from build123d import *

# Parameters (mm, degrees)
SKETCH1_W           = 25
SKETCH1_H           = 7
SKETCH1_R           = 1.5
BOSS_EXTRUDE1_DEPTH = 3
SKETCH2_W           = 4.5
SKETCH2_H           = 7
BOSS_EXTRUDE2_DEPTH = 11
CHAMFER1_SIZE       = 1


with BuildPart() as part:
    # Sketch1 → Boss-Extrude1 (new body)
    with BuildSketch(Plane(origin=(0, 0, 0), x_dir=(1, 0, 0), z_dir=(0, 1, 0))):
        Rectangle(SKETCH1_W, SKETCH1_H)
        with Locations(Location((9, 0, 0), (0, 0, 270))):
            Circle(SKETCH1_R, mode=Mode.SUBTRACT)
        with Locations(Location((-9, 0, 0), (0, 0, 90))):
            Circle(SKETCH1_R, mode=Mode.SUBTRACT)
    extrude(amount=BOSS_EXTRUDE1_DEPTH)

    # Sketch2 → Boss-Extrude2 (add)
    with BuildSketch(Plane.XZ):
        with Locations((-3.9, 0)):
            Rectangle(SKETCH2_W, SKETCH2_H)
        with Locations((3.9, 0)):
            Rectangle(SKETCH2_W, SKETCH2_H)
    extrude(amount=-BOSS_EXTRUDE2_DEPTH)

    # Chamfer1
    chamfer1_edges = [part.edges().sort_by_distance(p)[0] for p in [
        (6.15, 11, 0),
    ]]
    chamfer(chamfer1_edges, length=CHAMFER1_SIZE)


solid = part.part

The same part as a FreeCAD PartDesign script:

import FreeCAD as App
import Part
import Sketcher
from FreeCAD import Vector
Q = App.Units.Quantity


def edges_at(feature, points):
    """Names of the edges that pass closest to the given points."""
    edges = feature.Shape.Edges
    near = lambda p: min(range(len(edges)), key=lambda i: edges[i].distToShape(Part.Vertex(*p))[0])
    return sorted({f"Edge{near(p) + 1}" for p in points})

doc = App.newDocument("Part")
params = doc.addObject("Spreadsheet::Sheet", "Params")
for row, (alias, value) in enumerate([
    ("sketch1_diameter", "3 mm"),
    ("sketch1_width", "25 mm"),
    ("sketch1_height", "7 mm"),
    ("pad1_length", "3 mm"),
    ("sketch2_height", "7 mm"),
    ("sketch2_width", "4.5 mm"),
    ("pad2_length", "11 mm"),
    ("chamfer_size", "1 mm"),
], start=1):
    params.set(f"A{row}", alias)
    params.set(f"B{row}", "=" + value)
    params.setAlias(f"B{row}", alias)

body = doc.addObject("PartDesign::Body", "Body")

# Sketch on XZ plane
sketch1 = body.newObject("Sketcher::SketchObject", "Sketch")
sketch1.AttachmentSupport = (doc.getObject("XZ_Plane"), [""])
sketch1.MapMode = "FlatFace"
sketch1.addGeometry([
    Part.LineSegment(Vector(-12.5, -3.5, 0), Vector(-12.5, 3.5, 0)),  # 0
    Part.LineSegment(Vector(-12.5, 3.5, 0), Vector(12.5, 3.5, 0)),  # 1
    Part.LineSegment(Vector(12.5, 3.5, 0), Vector(12.5, -3.5, 0)),  # 2
    Part.LineSegment(Vector(12.5, -3.5, 0), Vector(-12.5, -3.5, 0)),  # 3
    Part.Circle(Vector(-9, 0, 0), Vector(0, 0, 1), 1.5),  # 4
    Part.Circle(Vector(9, 0, 0), Vector(0, 0, 1), 1.5),  # 5
], False)
sketch1.addConstraint([
    Sketcher.Constraint("Coincident", 0, 2, 1, 1),
    Sketcher.Constraint("Coincident", 1, 2, 2, 1),
    Sketcher.Constraint("Coincident", 2, 2, 3, 1),
    Sketcher.Constraint("Coincident", 3, 2, 0, 1),
    Sketcher.Constraint("Vertical", 0),
    Sketcher.Constraint("Horizontal", 1),
    Sketcher.Constraint("Vertical", 2),
    Sketcher.Constraint("Horizontal", 3),
    Sketcher.Constraint("Equal", 4, 5),
    Sketcher.Constraint("Symmetric", 4, 3, 5, 3, -1, 1),
    Sketcher.Constraint("Symmetric", 0, 2, 2, 2, -1, 1),
    Sketcher.Constraint("PointOnObject", 4, 3, -1),
    Sketcher.Constraint("Diameter", 4, Q("3 mm")),
    Sketcher.Constraint("DistanceX", 1, 1, 1, 2, Q("25 mm")),
    Sketcher.Constraint("DistanceY", 0, 1, 0, 2, Q("7 mm")),
    Sketcher.Constraint("DistanceX", 4, 3, -1, 1, Q("9 mm")),
])
sketch1.setExpression("Constraints[12]", "Params.sketch1_diameter")
sketch1.setExpression("Constraints[13]", "Params.sketch1_width")
sketch1.setExpression("Constraints[14]", "Params.sketch1_height")
pad1 = body.newObject("PartDesign::Pad", "Pad")
pad1.Profile = sketch1
pad1.setExpression("Length", "Params.pad1_length")
pad1.Reversed = True

# Sketch on XZ plane
sketch2 = body.newObject("Sketcher::SketchObject", "Sketch001")
sketch2.AttachmentSupport = (doc.getObject("XZ_Plane"), [""])
sketch2.MapMode = "FlatFace"
sketch2.addGeometry([
    Part.LineSegment(Vector(-6.2, 3.5, 0), Vector(-6.2, -3.5, 0)),  # 0
    Part.LineSegment(Vector(-6.2, -3.5, 0), Vector(-1.6, -3.5, 0)),  # 1
    Part.LineSegment(Vector(-1.6, -3.5, 0), Vector(-1.6, 3.5, 0)),  # 2
    Part.LineSegment(Vector(-1.6, 3.5, 0), Vector(-6.2, 3.5, 0)),  # 3
    Part.LineSegment(Vector(1.6, 3.5, 0), Vector(1.6, -3.5, 0)),  # 4
    Part.LineSegment(Vector(1.6, -3.5, 0), Vector(6.2, -3.5, 0)),  # 5
    Part.LineSegment(Vector(6.2, -3.5, 0), Vector(6.2, 3.5, 0)),  # 6
    Part.LineSegment(Vector(6.2, 3.5, 0), Vector(1.6, 3.5, 0)),  # 7
], False)
sketch2.addConstraint([
    Sketcher.Constraint("Coincident", 0, 2, 1, 1),
    Sketcher.Constraint("Coincident", 1, 2, 2, 1),
    Sketcher.Constraint("Coincident", 2, 2, 3, 1),
    Sketcher.Constraint("Coincident", 3, 2, 0, 1),
    Sketcher.Constraint("Coincident", 4, 2, 5, 1),
    Sketcher.Constraint("Coincident", 5, 2, 6, 1),
    Sketcher.Constraint("Coincident", 6, 2, 7, 1),
    Sketcher.Constraint("Coincident", 7, 2, 4, 1),
    Sketcher.Constraint("Vertical", 0),
    Sketcher.Constraint("Horizontal", 1),
    Sketcher.Constraint("Vertical", 2),
    Sketcher.Constraint("Horizontal", 3),
    Sketcher.Constraint("Vertical", 4),
    Sketcher.Constraint("Horizontal", 5),
    Sketcher.Constraint("Vertical", 6),
    Sketcher.Constraint("Horizontal", 7),
    Sketcher.Constraint("Symmetric", 2, 2, 4, 2, -1, 1),
    Sketcher.Constraint("Symmetric", 0, 2, 6, 2, -1, 1),
    Sketcher.Constraint("Horizontal", 1, 2, 4, 2),
    Sketcher.Constraint("DistanceY", 0, 2, 0, 1, Q("7 mm")),
    Sketcher.Constraint("DistanceX", 1, 1, 1, 2, Q("4.5 mm")),
    Sketcher.Constraint("DistanceX", 1, 2, 4, 2, Q("3.3 mm")),
])
sketch2.setExpression("Constraints[19]", "Params.sketch2_height")
sketch2.setExpression("Constraints[20]", "Params.sketch2_width")
pad2 = body.newObject("PartDesign::Pad", "Pad001")
pad2.Profile = sketch2
pad2.setExpression("Length", "Params.pad2_length")
pad2.Reversed = True
doc.recompute()

chamfer = body.newObject("PartDesign::Chamfer", "Chamfer")
chamfer.Base = (pad2, edges_at(pad2, [(6.15, 11, 0)]))
chamfer.setExpression("Size", "Params.chamfer_size")

doc.recompute()
